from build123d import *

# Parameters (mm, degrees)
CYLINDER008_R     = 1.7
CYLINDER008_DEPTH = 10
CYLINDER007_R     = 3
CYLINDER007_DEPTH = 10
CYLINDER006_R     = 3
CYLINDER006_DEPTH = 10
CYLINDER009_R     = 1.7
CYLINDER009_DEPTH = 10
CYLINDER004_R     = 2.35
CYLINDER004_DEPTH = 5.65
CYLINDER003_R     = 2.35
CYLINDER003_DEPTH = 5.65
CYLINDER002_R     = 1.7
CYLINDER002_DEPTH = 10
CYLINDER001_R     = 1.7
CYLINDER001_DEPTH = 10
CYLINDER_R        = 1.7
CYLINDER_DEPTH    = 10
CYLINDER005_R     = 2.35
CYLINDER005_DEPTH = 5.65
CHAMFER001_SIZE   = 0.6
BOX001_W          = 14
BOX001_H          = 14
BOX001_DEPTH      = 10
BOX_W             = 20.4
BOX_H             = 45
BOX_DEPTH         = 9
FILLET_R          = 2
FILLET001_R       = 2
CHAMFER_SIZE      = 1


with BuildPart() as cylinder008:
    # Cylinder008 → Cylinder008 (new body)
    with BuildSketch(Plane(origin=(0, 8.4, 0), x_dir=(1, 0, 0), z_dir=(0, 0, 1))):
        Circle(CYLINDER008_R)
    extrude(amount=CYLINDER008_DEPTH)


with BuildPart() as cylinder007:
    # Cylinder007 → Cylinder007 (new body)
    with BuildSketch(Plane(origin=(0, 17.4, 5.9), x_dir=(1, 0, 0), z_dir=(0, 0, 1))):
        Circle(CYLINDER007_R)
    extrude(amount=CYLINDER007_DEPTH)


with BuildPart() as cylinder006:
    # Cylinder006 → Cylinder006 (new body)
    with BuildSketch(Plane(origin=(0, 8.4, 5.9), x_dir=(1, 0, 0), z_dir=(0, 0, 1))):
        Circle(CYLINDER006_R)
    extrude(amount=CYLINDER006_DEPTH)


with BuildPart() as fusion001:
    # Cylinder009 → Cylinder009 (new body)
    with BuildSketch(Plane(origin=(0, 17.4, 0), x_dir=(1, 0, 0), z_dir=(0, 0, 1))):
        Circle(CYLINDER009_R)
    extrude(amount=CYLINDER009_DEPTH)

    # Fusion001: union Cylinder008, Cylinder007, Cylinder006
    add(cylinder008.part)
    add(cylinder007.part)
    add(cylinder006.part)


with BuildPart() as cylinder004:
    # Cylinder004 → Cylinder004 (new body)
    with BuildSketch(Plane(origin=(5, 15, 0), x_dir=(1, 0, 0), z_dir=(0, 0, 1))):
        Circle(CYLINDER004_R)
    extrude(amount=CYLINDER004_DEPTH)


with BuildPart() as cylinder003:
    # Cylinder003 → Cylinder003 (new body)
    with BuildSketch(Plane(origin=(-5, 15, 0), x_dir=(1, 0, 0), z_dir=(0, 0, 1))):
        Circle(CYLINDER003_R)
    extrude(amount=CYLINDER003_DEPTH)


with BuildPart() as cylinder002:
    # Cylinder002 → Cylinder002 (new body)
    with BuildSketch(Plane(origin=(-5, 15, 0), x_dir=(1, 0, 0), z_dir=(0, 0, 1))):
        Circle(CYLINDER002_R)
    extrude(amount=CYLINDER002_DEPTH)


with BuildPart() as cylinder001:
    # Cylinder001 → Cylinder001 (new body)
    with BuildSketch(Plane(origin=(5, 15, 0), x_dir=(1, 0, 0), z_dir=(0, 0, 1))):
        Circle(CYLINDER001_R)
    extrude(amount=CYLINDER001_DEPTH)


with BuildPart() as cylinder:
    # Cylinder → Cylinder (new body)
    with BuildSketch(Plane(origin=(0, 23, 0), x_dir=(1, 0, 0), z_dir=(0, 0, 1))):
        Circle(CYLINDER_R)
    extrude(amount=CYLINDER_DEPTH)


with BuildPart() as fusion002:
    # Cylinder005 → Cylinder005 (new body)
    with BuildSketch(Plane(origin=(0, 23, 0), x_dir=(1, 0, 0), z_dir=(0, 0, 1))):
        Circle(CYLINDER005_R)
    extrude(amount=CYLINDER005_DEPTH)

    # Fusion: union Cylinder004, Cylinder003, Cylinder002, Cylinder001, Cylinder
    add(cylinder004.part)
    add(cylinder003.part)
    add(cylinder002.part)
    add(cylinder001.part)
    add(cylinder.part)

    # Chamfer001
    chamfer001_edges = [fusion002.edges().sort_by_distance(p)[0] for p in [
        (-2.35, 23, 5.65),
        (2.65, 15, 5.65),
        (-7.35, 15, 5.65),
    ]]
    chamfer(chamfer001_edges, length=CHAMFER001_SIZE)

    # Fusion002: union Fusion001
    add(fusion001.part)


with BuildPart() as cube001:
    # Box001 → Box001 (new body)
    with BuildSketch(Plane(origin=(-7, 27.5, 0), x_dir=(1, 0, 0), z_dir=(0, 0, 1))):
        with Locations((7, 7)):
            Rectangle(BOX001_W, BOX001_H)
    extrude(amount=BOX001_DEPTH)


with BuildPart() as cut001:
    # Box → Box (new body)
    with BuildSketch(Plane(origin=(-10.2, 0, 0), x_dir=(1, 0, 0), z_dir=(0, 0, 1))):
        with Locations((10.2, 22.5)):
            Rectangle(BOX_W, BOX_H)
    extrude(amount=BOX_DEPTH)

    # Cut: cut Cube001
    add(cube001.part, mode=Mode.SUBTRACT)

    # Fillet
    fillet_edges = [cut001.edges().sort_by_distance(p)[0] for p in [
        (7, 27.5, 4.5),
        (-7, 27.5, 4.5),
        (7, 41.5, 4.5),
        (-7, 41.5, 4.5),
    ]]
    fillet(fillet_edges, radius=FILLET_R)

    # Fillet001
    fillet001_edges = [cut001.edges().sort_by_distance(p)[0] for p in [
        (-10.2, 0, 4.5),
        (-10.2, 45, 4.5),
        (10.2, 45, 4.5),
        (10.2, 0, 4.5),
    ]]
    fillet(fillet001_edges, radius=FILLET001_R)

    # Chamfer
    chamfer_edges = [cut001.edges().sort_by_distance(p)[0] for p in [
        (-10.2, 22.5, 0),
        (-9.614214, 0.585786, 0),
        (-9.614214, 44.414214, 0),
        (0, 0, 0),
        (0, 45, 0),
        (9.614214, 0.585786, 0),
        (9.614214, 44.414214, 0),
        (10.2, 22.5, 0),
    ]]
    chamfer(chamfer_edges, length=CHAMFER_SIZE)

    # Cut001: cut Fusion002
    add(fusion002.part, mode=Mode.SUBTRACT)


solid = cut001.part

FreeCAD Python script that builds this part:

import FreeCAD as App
import Part
import Sketcher


def edges_at(feature, points):
    """Names of the edges that pass closest to the given points."""
    edges = feature.Shape.Edges
    near = lambda p: min(range(len(edges)), key=lambda i: edges[i].distToShape(Part.Vertex(*p))[0])
    return sorted({f"Edge{near(p) + 1}" for p in points})


def add_polygon(sketch, points):
    """Adds a closed chain of lines whose ends are joined by coincident constraints."""
    first, n = sketch.GeometryCount, len(points)
    for a, b in zip(points, points[1:] + points[:1]):
        sketch.addGeometry(Part.LineSegment(App.Vector(*a, 0), App.Vector(*b, 0)), False)
    for i in range(n):
        sketch.addConstraint(Sketcher.Constraint("Coincident", first + i, 2, first + (i + 1) % n, 1))

doc = App.newDocument("Part")
body = doc.addObject("PartDesign::Body", "Body")

sketch1 = body.newObject("Sketcher::SketchObject", "Sketch")
sketch1.AttachmentSupport = (doc.getObject("XY_Plane"), [""])
sketch1.MapMode = "FlatFace"
sketch1.addGeometry(Part.Circle(App.Vector(0, 8.4, 0), App.Vector(0, 0, 1), 1.7), False)
sketch1.addConstraint(Sketcher.Constraint("PointOnObject", 0, 3, -2))
sketch1.addConstraint(Sketcher.Constraint("Diameter", 0, 3.4))
sketch1.addConstraint(Sketcher.Constraint("DistanceY", -1, 1, 0, 3, 8.4))
pad1 = body.newObject("PartDesign::Pad", "Pad")
pad1.Profile = sketch1
pad1.Length = 10
body2 = doc.addObject("PartDesign::Body", "Body001")

sketch2 = body2.newObject("Sketcher::SketchObject", "Sketch001")
sketch2.AttachmentSupport = (doc.getObject("XY_Plane001"), [""])
sketch2.MapMode = "FlatFace"
sketch2.AttachmentOffset = App.Placement(App.Vector(0, 0, 5.9), App.Rotation())
sketch2.addGeometry(Part.Circle(App.Vector(0, 17.4, 0), App.Vector(0, 0, 1), 3), False)
sketch2.addConstraint(Sketcher.Constraint("PointOnObject", 0, 3, -2))
sketch2.addConstraint(Sketcher.Constraint("Diameter", 0, 6.0))
sketch2.addConstraint(Sketcher.Constraint("DistanceY", -1, 1, 0, 3, 17.4))
pad2 = body2.newObject("PartDesign::Pad", "Pad001")
pad2.Profile = sketch2
pad2.Length = 10
body3 = doc.addObject("PartDesign::Body", "Body002")

sketch3 = body3.newObject("Sketcher::SketchObject", "Sketch002")
sketch3.AttachmentSupport = (doc.getObject("XY_Plane002"), [""])
sketch3.MapMode = "FlatFace"
sketch3.AttachmentOffset = App.Placement(App.Vector(0, 0, 5.9), App.Rotation())
sketch3.addGeometry(Part.Circle(App.Vector(0, 8.4, 0), App.Vector(0, 0, 1), 3), False)
sketch3.addConstraint(Sketcher.Constraint("PointOnObject", 0, 3, -2))
sketch3.addConstraint(Sketcher.Constraint("Diameter", 0, 6.0))
sketch3.addConstraint(Sketcher.Constraint("DistanceY", -1, 1, 0, 3, 8.4))
pad3 = body3.newObject("PartDesign::Pad", "Pad002")
pad3.Profile = sketch3
pad3.Length = 10
body4 = doc.addObject("PartDesign::Body", "Body003")
body4.AllowCompound = True

sketch4 = body4.newObject("Sketcher::SketchObject", "Sketch003")
sketch4.AttachmentSupport = (doc.getObject("XY_Plane003"), [""])
sketch4.MapMode = "FlatFace"
sketch4.addGeometry(Part.Circle(App.Vector(0, 17.4, 0), App.Vector(0, 0, 1), 1.7), False)
sketch4.addConstraint(Sketcher.Constraint("PointOnObject", 0, 3, -2))
sketch4.addConstraint(Sketcher.Constraint("Diameter", 0, 3.4))
sketch4.addConstraint(Sketcher.Constraint("DistanceY", -1, 1, 0, 3, 17.4))
pad4 = body4.newObject("PartDesign::Pad", "Pad003")
pad4.Profile = sketch4
pad4.Length = 10
doc.recompute()

boolean = body4.newObject("PartDesign::Boolean", "Boolean")
boolean.Type = "Fuse"
boolean.addObjects([body])
doc.recompute()

boolean2 = body4.newObject("PartDesign::Boolean", "Boolean001")
boolean2.Type = "Fuse"
boolean2.addObjects([body2])
doc.recompute()

boolean3 = body4.newObject("PartDesign::Boolean", "Boolean002")
boolean3.Type = "Fuse"
boolean3.addObjects([body3])
body5 = doc.addObject("PartDesign::Body", "Body004")

sketch5 = body5.newObject("Sketcher::SketchObject", "Sketch004")
sketch5.AttachmentSupport = (doc.getObject("XY_Plane004"), [""])
sketch5.MapMode = "FlatFace"
sketch5.addGeometry(Part.Circle(App.Vector(5, 15, 0), App.Vector(0, 0, 1), 2.4), False)
sketch5.addConstraint(Sketcher.Constraint("Diameter", 0, 4.7))
sketch5.addConstraint(Sketcher.Constraint("DistanceX", -1, 1, 0, 3, 5.0))
sketch5.addConstraint(Sketcher.Constraint("DistanceY", -1, 1, 0, 3, 15.0))
pad5 = body5.newObject("PartDesign::Pad", "Pad004")
pad5.Profile = sketch5
pad5.Length = 5.65
body6 = doc.addObject("PartDesign::Body", "Body005")

sketch6 = body6.newObject("Sketcher::SketchObject", "Sketch005")
sketch6.AttachmentSupport = (doc.getObject("XY_Plane005"), [""])
sketch6.MapMode = "FlatFace"
sketch6.addGeometry(Part.Circle(App.Vector(-5, 15, 0), App.Vector(0, 0, 1), 2.4), False)
sketch6.addConstraint(Sketcher.Constraint("Diameter", 0, 4.7))
sketch6.addConstraint(Sketcher.Constraint("DistanceX", 0, 3, -1, 1, 5.0))
sketch6.addConstraint(Sketcher.Constraint("DistanceY", -1, 1, 0, 3, 15.0))
pad6 = body6.newObject("PartDesign::Pad", "Pad005")
pad6.Profile = sketch6
pad6.Length = 5.65
body7 = doc.addObject("PartDesign::Body", "Body006")

sketch7 = body7.newObject("Sketcher::SketchObject", "Sketch006")
sketch7.AttachmentSupport = (doc.getObject("XY_Plane006"), [""])
sketch7.MapMode = "FlatFace"
sketch7.addGeometry(Part.Circle(App.Vector(-5, 15, 0), App.Vector(0, 0, 1), 1.7), False)
sketch7.addConstraint(Sketcher.Constraint("Diameter", 0, 3.4))
sketch7.addConstraint(Sketcher.Constraint("DistanceX", 0, 3, -1, 1, 5.0))
sketch7.addConstraint(Sketcher.Constraint("DistanceY", -1, 1, 0, 3, 15.0))
pad7 = body7.newObject("PartDesign::Pad", "Pad006")
pad7.Profile = sketch7
pad7.Length = 10
body8 = doc.addObject("PartDesign::Body", "Body007")

sketch8 = body8.newObject("Sketcher::SketchObject", "Sketch007")
sketch8.AttachmentSupport = (doc.getObject("XY_Plane007"), [""])
sketch8.MapMode = "FlatFace"
sketch8.addGeometry(Part.Circle(App.Vector(5, 15, 0), App.Vector(0, 0, 1), 1.7), False)
sketch8.addConstraint(Sketcher.Constraint("Diameter", 0, 3.4))
sketch8.addConstraint(Sketcher.Constraint("DistanceX", -1, 1, 0, 3, 5.0))
sketch8.addConstraint(Sketcher.Constraint("DistanceY", -1, 1, 0, 3, 15.0))
pad8 = body8.newObject("PartDesign::Pad", "Pad007")
pad8.Profile = sketch8
pad8.Length = 10
body9 = doc.addObject("PartDesign::Body", "Body008")

sketch9 = body9.newObject("Sketcher::SketchObject", "Sketch008")
sketch9.AttachmentSupport = (doc.getObject("XY_Plane008"), [""])
sketch9.MapMode = "FlatFace"
sketch9.addGeometry(Part.Circle(App.Vector(0, 23, 0), App.Vector(0, 0, 1), 1.7), False)
sketch9.addConstraint(Sketcher.Constraint("PointOnObject", 0, 3, -2))
sketch9.addConstraint(Sketcher.Constraint("Diameter", 0, 3.4))
sketch9.addConstraint(Sketcher.Constraint("DistanceY", -1, 1, 0, 3, 23.0))
pad9 = body9.newObject("PartDesign::Pad", "Pad008")
pad9.Profile = sketch9
pad9.Length = 10
body10 = doc.addObject("PartDesign::Body", "Body009")
body10.AllowCompound = True

sketch10 = body10.newObject("Sketcher::SketchObject", "Sketch009")
sketch10.AttachmentSupport = (doc.getObject("XY_Plane009"), [""])
sketch10.MapMode = "FlatFace"
sketch10.addGeometry(Part.Circle(App.Vector(0, 23, 0), App.Vector(0, 0, 1), 2.4), False)
sketch10.addConstraint(Sketcher.Constraint("PointOnObject", 0, 3, -2))
sketch10.addConstraint(Sketcher.Constraint("Diameter", 0, 4.7))
sketch10.addConstraint(Sketcher.Constraint("DistanceY", -1, 1, 0, 3, 23.0))
pad10 = body10.newObject("PartDesign::Pad", "Pad009")
pad10.Profile = sketch10
pad10.Length = 5.65
doc.recompute()

boolean4 = body10.newObject("PartDesign::Boolean", "Boolean003")
boolean4.Type = "Fuse"
boolean4.addObjects([body5])
doc.recompute()

boolean5 = body10.newObject("PartDesign::Boolean", "Boolean004")
boolean5.Type = "Fuse"
boolean5.addObjects([body6])
doc.recompute()

boolean6 = body10.newObject("PartDesign::Boolean", "Boolean005")
boolean6.Type = "Fuse"
boolean6.addObjects([body7])
doc.recompute()

boolean7 = body10.newObject("PartDesign::Boolean", "Boolean006")
boolean7.Type = "Fuse"
boolean7.addObjects([body8])
doc.recompute()

boolean8 = body10.newObject("PartDesign::Boolean", "Boolean007")
boolean8.Type = "Fuse"
boolean8.addObjects([body9])
doc.recompute()

chamfer = body10.newObject("PartDesign::Chamfer", "Chamfer")
chamfer.Base = (boolean8, edges_at(boolean8, [(-2.35, 23, 5.65), (2.65, 15, 5.65), (-7.35, 15, 5.65)]))
chamfer.Size = 0.6
doc.recompute()

boolean9 = body10.newObject("PartDesign::Boolean", "Boolean008")
boolean9.Type = "Fuse"
boolean9.addObjects([body4])
body11 = doc.addObject("PartDesign::Body", "Body010")

sketch11 = body11.newObject("Sketcher::SketchObject", "Sketch010")
sketch11.AttachmentSupport = (doc.getObject("XY_Plane010"), [""])
sketch11.MapMode = "FlatFace"
add_polygon(sketch11, [(-7, 42), (-7, 28), (7, 28), (7, 42)])
sketch11.addConstraint(Sketcher.Constraint("Vertical", 0))
sketch11.addConstraint(Sketcher.Constraint("Horizontal", 1))
sketch11.addConstraint(Sketcher.Constraint("Vertical", 2))
sketch11.addConstraint(Sketcher.Constraint("Horizontal", 3))
sketch11.addConstraint(Sketcher.Constraint("Equal", 3, 0))
sketch11.addConstraint(Sketcher.Constraint("DistanceX", 1, 1, 1, 2, 14.0))
sketch11.addConstraint(Sketcher.Constraint("DistanceX", 0, 2, -1, 1, 7.0))
sketch11.addConstraint(Sketcher.Constraint("DistanceY", -1, 1, 0, 2, 27.5))
pad11 = body11.newObject("PartDesign::Pad", "Pad010")
pad11.Profile = sketch11
pad11.Length = 10
body12 = doc.addObject("PartDesign::Body", "Body011")

sketch12 = body12.newObject("Sketcher::SketchObject", "Sketch011")
sketch12.AttachmentSupport = (doc.getObject("XY_Plane011"), [""])
sketch12.MapMode = "FlatFace"
add_polygon(sketch12, [(-10, 45), (-10, 0), (10, 0), (10, 45)])
sketch12.addConstraint(Sketcher.Constraint("Vertical", 0))
sketch12.addConstraint(Sketcher.Constraint("Horizontal", 1))
sketch12.addConstraint(Sketcher.Constraint("Vertical", 2))
sketch12.addConstraint(Sketcher.Constraint("Horizontal", 3))
sketch12.addConstraint(Sketcher.Constraint("Symmetric", 0, 2, 1, 2, -1, 1))
sketch12.addConstraint(Sketcher.Constraint("DistanceY", 0, 2, 0, 1, 45.0))
sketch12.addConstraint(Sketcher.Constraint("DistanceX", 1, 1, 1, 2, 20.4))
pad12 = body12.newObject("PartDesign::Pad", "Pad011")
pad12.Profile = sketch12
pad12.Length = 9
doc.recompute()

boolean10 = body12.newObject("PartDesign::Boolean", "Boolean009")
boolean10.Type = "Cut"
boolean10.addObjects([body11])
doc.recompute()

fillet = body12.newObject("PartDesign::Fillet", "Fillet")
fillet.Base = (boolean10, edges_at(boolean10, [
    (7, 27.5, 4.5),
    (-7, 27.5, 4.5),
    (7, 41.5, 4.5),
    (-7, 41.5, 4.5),
]))
fillet.Radius = 2
doc.recompute()

fillet2 = body12.newObject("PartDesign::Fillet", "Fillet001")
fillet2.Base = (fillet, edges_at(fillet, [
    (-10.2, 0, 4.5),
    (-10.2, 45, 4.5),
    (10.2, 45, 4.5),
    (10.2, 0, 4.5),
]))
fillet2.Radius = 2
doc.recompute()

chamfer2 = body12.newObject("PartDesign::Chamfer", "Chamfer001")
chamfer2.Base = (fillet2, edges_at(fillet2, [
    (-10.2, 22.5, 0),
    (-9.614, 0.586, 0),
    (-9.614, 44.414, 0),
    (0, 0, 0),
    (0, 45, 0),
    (9.614, 0.586, 0),
    (9.614, 44.414, 0),
    (10.2, 22.5, 0),
]))
chamfer2.Size = 1
doc.recompute()

boolean11 = body12.newObject("PartDesign::Boolean", "Boolean010")
boolean11.Type = "Cut"
boolean11.addObjects([body10])

doc.recompute()
